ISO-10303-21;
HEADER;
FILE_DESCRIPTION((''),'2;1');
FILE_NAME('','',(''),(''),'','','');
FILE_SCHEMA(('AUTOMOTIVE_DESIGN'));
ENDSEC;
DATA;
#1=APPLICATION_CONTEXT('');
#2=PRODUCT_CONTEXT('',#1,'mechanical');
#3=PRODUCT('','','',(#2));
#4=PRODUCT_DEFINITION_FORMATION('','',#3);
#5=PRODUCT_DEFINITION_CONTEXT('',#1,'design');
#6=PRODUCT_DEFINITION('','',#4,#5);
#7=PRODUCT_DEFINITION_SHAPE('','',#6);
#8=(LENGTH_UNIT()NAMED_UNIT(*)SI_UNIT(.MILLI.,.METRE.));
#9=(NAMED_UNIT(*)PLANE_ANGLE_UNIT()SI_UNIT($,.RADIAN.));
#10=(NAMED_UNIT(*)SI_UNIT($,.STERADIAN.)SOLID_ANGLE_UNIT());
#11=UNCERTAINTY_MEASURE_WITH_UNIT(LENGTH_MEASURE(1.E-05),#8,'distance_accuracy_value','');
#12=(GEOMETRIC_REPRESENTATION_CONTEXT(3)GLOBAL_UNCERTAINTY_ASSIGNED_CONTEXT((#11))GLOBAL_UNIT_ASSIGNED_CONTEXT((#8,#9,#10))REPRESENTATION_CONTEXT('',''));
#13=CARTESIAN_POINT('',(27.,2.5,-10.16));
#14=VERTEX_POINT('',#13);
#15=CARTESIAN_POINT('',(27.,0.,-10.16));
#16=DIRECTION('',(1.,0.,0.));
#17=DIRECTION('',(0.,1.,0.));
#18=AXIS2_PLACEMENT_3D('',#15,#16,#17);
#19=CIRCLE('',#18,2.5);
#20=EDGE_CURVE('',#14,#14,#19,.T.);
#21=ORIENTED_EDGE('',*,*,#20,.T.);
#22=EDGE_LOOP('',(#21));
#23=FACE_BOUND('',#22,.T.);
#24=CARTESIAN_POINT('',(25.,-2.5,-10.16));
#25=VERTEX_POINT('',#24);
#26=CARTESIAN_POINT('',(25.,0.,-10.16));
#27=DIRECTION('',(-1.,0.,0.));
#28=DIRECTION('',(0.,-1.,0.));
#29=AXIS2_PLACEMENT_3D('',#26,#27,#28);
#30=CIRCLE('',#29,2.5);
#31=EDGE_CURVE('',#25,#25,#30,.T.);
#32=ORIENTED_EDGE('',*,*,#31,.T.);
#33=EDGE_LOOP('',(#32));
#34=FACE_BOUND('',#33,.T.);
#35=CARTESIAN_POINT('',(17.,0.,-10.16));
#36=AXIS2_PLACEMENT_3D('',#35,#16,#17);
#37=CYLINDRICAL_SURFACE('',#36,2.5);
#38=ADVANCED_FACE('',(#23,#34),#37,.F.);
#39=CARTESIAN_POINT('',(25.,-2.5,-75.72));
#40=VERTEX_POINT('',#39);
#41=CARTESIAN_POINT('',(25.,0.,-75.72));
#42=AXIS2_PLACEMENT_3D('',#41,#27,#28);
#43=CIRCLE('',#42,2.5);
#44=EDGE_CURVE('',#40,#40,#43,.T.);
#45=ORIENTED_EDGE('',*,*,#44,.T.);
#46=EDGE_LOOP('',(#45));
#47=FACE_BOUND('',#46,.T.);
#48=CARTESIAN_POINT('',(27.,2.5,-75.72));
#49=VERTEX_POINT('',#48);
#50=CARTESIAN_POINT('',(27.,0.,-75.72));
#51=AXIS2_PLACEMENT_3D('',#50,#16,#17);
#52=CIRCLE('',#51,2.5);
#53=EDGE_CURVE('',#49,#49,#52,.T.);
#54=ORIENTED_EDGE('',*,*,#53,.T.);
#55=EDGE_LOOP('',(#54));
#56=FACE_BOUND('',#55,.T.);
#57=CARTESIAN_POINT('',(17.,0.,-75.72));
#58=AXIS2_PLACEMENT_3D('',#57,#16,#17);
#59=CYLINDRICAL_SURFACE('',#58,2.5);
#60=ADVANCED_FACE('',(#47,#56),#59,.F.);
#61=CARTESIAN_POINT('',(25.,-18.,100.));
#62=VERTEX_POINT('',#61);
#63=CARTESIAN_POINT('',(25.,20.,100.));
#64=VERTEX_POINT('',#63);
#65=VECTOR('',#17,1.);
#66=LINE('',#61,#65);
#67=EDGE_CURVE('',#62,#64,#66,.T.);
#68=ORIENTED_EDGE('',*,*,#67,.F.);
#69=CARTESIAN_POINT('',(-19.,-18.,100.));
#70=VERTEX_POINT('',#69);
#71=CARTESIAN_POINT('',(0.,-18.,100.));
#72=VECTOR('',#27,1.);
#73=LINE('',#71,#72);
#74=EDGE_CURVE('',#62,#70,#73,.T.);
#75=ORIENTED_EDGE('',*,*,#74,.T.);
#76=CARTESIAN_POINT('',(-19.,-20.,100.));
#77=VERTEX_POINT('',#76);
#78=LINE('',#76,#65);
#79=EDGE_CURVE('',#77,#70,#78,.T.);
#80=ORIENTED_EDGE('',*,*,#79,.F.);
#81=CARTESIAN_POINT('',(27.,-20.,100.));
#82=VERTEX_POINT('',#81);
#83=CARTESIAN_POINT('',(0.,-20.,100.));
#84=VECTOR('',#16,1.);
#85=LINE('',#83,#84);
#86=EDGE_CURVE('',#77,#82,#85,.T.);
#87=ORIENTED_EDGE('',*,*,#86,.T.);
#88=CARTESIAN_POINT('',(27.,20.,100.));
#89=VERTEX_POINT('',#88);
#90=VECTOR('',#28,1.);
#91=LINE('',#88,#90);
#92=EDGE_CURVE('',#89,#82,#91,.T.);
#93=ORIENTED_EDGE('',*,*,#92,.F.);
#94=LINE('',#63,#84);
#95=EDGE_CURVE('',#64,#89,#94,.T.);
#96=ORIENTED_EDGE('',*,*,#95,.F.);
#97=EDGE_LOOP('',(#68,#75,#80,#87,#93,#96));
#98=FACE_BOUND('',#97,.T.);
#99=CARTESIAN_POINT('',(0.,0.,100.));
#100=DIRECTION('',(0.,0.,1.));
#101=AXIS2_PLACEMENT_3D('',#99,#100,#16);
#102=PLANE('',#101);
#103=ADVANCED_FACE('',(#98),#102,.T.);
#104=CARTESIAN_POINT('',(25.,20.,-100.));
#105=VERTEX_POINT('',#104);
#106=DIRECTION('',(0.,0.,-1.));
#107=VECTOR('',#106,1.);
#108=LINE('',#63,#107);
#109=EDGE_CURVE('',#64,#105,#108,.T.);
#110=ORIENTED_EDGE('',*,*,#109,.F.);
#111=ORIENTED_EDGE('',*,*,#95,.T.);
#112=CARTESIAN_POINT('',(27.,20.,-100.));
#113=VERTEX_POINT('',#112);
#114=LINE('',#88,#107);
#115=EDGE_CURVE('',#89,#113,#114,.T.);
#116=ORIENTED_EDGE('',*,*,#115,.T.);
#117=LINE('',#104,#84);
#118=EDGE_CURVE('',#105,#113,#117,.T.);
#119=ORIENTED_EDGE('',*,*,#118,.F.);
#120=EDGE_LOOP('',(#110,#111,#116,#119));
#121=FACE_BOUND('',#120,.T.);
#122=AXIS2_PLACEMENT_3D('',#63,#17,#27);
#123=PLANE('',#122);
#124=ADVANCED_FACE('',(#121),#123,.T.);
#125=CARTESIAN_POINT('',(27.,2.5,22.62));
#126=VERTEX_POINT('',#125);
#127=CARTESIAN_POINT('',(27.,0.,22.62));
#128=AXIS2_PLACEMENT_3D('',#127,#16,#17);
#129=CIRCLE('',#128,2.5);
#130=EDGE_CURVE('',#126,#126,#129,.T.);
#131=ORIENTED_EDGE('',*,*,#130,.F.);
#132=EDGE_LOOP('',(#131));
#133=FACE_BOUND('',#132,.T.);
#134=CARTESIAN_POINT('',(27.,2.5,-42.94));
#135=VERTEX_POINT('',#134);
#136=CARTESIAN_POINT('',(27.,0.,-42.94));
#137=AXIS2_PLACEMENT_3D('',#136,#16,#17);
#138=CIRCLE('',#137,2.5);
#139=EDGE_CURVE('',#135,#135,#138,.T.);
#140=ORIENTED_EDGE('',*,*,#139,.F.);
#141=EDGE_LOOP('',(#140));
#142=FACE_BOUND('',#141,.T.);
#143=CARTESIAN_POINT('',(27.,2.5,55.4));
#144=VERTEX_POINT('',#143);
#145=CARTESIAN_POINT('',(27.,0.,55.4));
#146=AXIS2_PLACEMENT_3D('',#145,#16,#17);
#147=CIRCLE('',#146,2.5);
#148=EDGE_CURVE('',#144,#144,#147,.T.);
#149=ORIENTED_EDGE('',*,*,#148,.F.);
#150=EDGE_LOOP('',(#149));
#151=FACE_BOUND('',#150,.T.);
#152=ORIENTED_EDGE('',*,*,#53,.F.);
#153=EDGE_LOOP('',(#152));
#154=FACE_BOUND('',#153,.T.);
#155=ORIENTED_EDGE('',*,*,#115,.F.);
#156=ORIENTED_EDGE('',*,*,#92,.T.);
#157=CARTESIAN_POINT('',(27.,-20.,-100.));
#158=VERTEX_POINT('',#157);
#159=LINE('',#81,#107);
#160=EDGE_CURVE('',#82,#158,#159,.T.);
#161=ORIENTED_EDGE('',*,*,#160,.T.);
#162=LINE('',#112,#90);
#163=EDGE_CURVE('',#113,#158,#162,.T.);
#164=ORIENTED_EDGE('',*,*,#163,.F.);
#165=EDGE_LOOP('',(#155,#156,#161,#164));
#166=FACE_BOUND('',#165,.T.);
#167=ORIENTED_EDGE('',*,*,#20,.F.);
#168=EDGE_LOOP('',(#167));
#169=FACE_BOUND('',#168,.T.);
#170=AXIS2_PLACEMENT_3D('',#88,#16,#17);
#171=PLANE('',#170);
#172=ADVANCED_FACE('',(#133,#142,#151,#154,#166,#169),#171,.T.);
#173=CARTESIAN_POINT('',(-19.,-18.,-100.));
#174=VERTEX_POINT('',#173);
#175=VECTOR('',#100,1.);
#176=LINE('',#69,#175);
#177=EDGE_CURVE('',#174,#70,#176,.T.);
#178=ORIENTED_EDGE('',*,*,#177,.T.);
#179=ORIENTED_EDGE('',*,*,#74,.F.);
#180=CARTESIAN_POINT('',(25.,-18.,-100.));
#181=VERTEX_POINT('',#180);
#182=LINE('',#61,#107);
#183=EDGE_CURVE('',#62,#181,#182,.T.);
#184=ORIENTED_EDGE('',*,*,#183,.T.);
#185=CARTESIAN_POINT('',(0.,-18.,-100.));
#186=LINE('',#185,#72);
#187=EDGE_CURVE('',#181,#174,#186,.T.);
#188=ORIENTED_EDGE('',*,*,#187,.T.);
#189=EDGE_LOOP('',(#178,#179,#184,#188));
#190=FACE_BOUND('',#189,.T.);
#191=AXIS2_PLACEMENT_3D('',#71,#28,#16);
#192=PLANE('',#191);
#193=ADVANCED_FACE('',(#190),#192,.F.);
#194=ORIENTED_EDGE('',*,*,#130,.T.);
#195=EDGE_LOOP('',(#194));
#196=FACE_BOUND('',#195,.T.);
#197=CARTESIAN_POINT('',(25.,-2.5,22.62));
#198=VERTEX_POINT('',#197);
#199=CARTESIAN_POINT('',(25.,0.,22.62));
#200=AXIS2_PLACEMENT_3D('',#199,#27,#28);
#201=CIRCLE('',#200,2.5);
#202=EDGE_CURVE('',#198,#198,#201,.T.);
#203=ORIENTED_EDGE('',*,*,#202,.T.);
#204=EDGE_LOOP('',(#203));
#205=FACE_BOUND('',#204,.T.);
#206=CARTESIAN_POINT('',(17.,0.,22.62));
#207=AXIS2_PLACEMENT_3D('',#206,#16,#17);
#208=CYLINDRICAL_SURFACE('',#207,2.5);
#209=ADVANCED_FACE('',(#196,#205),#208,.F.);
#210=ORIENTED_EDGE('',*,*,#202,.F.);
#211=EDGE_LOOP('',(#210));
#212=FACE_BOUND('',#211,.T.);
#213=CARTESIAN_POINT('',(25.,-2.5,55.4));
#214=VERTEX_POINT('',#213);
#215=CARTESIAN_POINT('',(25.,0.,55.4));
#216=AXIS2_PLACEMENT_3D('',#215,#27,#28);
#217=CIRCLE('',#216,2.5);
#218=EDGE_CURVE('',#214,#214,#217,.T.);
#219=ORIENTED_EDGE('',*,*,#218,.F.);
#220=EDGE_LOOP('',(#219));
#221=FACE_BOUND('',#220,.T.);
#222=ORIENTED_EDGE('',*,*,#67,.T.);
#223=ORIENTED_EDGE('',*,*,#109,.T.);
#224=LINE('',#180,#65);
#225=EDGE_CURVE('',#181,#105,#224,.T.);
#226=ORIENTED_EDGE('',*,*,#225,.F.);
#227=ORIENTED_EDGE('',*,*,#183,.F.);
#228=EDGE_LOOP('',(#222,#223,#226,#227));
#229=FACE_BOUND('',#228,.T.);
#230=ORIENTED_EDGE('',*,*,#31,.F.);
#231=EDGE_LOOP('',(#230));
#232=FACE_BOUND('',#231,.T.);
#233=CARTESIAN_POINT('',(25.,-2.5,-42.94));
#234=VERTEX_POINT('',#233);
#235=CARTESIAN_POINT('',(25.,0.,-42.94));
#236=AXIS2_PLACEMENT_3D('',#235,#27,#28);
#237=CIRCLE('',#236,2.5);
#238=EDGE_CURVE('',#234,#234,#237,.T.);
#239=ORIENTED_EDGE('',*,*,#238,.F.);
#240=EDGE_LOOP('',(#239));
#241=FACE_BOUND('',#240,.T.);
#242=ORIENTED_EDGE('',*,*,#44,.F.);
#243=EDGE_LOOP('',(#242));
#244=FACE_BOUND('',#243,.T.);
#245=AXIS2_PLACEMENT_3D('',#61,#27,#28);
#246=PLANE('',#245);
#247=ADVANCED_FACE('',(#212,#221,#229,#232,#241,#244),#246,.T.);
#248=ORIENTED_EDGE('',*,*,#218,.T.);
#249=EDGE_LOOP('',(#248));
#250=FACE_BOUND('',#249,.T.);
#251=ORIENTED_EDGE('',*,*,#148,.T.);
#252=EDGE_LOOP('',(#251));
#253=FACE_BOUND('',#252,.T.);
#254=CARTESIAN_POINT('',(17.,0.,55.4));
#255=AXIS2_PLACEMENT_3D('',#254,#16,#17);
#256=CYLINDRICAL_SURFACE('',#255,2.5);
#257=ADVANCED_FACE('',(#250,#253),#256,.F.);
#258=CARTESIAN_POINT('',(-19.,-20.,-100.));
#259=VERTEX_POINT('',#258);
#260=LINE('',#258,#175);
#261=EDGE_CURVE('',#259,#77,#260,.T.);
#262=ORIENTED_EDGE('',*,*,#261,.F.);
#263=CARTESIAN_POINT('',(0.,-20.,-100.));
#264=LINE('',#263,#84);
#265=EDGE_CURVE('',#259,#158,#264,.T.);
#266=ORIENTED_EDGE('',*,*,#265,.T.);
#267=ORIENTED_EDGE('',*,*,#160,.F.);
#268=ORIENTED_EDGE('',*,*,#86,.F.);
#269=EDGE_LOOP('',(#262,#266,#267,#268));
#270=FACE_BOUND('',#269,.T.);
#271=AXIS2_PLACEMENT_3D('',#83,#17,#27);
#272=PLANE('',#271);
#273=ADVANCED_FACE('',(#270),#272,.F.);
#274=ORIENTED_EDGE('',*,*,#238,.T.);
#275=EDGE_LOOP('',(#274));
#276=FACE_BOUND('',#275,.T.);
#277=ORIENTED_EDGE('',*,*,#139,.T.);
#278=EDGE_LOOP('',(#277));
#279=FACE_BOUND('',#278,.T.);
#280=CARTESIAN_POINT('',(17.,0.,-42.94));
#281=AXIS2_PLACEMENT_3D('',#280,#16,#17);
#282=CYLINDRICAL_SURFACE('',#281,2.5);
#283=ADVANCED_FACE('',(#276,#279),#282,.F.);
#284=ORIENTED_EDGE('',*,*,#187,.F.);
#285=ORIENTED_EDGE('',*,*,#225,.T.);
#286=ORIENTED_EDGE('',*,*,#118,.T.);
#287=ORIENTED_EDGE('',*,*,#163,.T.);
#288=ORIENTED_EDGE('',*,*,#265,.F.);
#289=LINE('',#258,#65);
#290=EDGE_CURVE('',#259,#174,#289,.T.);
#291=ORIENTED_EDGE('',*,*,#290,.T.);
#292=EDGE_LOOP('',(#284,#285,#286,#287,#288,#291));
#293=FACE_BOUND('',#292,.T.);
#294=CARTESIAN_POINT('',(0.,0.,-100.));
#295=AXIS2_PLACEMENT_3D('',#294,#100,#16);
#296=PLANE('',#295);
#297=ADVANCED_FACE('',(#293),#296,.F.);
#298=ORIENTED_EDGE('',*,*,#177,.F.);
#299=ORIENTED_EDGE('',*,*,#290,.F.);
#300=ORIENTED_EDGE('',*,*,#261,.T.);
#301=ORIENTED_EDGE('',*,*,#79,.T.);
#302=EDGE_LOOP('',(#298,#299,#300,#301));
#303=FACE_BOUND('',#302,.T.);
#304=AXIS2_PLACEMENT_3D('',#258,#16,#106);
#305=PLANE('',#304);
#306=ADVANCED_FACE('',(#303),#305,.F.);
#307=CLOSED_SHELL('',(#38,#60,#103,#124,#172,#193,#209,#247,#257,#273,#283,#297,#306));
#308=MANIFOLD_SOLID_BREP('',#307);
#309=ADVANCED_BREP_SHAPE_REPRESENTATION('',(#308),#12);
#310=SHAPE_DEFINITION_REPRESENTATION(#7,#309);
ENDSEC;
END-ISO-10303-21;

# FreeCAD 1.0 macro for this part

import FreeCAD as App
import Part
import Sketcher

V = App.Vector
Q = App.Units.Quantity

doc = App.newDocument("Part")
params = doc.addObject("Spreadsheet::Sheet", "Params")
for row, (alias, value) in enumerate([
    ("sketch1_width", "54 mm"),
    ("sketch1_width2", "2 mm"),
    ("sketch1_height", "40 mm"),
    ("sketch1_height2", "38 mm"),
    ("pad1_length", "200 mm"),
    ("sketch2_diameter", "5 mm"),
    ("pocket1_length", "10 mm"),
    ("sketch3_width", "8 mm"),
    ("sketch3_height", "40 mm"),
], start=1):
    params.set(f"A{row}", alias)
    params.set(f"B{row}", "=" + value)
    params.setAlias(f"B{row}", alias)

body = doc.addObject("PartDesign::Body", "Body")

# Sketch on XY plane
sketch1 = doc.addObject("Sketcher::SketchObject", "Sketch")
body.addObject(sketch1)
sketch1.AttachmentSupport = (doc.XY_Plane, [""])
sketch1.MapMode = "FlatFace"
sketch1.addGeometry(Part.LineSegment(V(-27, 20, 0), V(-27, -20, 0)), False)
sketch1.addGeometry(Part.LineSegment(V(-27, -20, 0), V(27, -20, 0)), False)
sketch1.addGeometry(Part.LineSegment(V(27, -20, 0), V(27, 20, 0)), False)
sketch1.addGeometry(Part.LineSegment(V(27, 20, 0), V(25, 20, 0)), False)
sketch1.addGeometry(Part.LineSegment(V(25, 20, 0), V(25, -18, 0)), False)
sketch1.addGeometry(Part.LineSegment(V(25, -18, 0), V(-25, -18, 0)), False)
sketch1.addGeometry(Part.LineSegment(V(-25, -18, 0), V(-25, 20, 0)), False)
sketch1.addGeometry(Part.LineSegment(V(-25, 20, 0), V(-27, 20, 0)), False)
sketch1.addConstraint(Sketcher.Constraint("Coincident", 0, 2, 1, 1))
sketch1.addConstraint(Sketcher.Constraint("Coincident", 1, 2, 2, 1))
sketch1.addConstraint(Sketcher.Constraint("Coincident", 2, 2, 3, 1))
sketch1.addConstraint(Sketcher.Constraint("Coincident", 3, 2, 4, 1))
sketch1.addConstraint(Sketcher.Constraint("Coincident", 4, 2, 5, 1))
sketch1.addConstraint(Sketcher.Constraint("Coincident", 5, 2, 6, 1))
sketch1.addConstraint(Sketcher.Constraint("Coincident", 6, 2, 7, 1))
sketch1.addConstraint(Sketcher.Constraint("Coincident", 7, 2, 0, 1))
sketch1.addConstraint(Sketcher.Constraint("Vertical", 0))
sketch1.addConstraint(Sketcher.Constraint("Horizontal", 1))
sketch1.addConstraint(Sketcher.Constraint("Vertical", 2))
sketch1.addConstraint(Sketcher.Constraint("Horizontal", 3))
sketch1.addConstraint(Sketcher.Constraint("Vertical", 4))
sketch1.addConstraint(Sketcher.Constraint("Horizontal", 5))
sketch1.addConstraint(Sketcher.Constraint("Vertical", 6))
sketch1.addConstraint(Sketcher.Constraint("Horizontal", 7))
sketch1.addConstraint(Sketcher.Constraint("Symmetric", 0, 2, 2, 2, -1, 1))
sketch1.addConstraint(Sketcher.Constraint("Symmetric", 3, 2, 6, 2, -2))
sketch1.addConstraint(Sketcher.Constraint("DistanceX", 1, 1, 1, 2, Q("54 mm")))
sketch1.addConstraint(Sketcher.Constraint("DistanceX", 3, 2, 3, 1, Q("2 mm")))
sketch1.addConstraint(Sketcher.Constraint("DistanceY", 0, 2, 0, 1, Q("40 mm")))
sketch1.addConstraint(Sketcher.Constraint("DistanceY", 4, 2, 4, 1, Q("38 mm")))
sketch1.setExpression("Constraints[18]", "Params.sketch1_width")
sketch1.setExpression("Constraints[19]", "Params.sketch1_width2")
sketch1.setExpression("Constraints[20]", "Params.sketch1_height")
sketch1.setExpression("Constraints[21]", "Params.sketch1_height2")
pad1 = doc.addObject("PartDesign::Pad", "Pad")
body.addObject(pad1)
pad1.Profile = sketch1
pad1.setExpression("Length", "Params.pad1_length")
pad1.Midplane = True

# Sketch on YZ plane
sketch2 = doc.addObject("Sketcher::SketchObject", "Sketch001")
body.addObject(sketch2)
sketch2.AttachmentSupport = (doc.YZ_Plane, [""])
sketch2.MapMode = "FlatFace"
sketch2.AttachmentOffset = App.Placement(V(0, 0, 27), App.Rotation())
sketch2.addGeometry(Part.Circle(V(0, 55.4, 0), V(0, 0, 1), 2.5), False)
sketch2.addGeometry(Part.Circle(V(0, 22.6, 0), V(0, 0, 1), 2.5), False)
sketch2.addGeometry(Part.Circle(V(0, -10.2, 0), V(0, 0, 1), 2.5), False)
sketch2.addGeometry(Part.Circle(V(0, -42.9, 0), V(0, 0, 1), 2.5), False)
sketch2.addGeometry(Part.Circle(V(0, -75.7, 0), V(0, 0, 1), 2.5), False)
sketch2.addConstraint(Sketcher.Constraint("Equal", 0, 1))
sketch2.addConstraint(Sketcher.Constraint("Equal", 1, 2))
sketch2.addConstraint(Sketcher.Constraint("Equal", 2, 3))
sketch2.addConstraint(Sketcher.Constraint("Equal", 3, 4))
sketch2.addConstraint(Sketcher.Constraint("PointOnObject", 0, 3, -2))
sketch2.addConstraint(Sketcher.Constraint("PointOnObject", 1, 3, -2))
sketch2.addConstraint(Sketcher.Constraint("PointOnObject", 2, 3, -2))
sketch2.addConstraint(Sketcher.Constraint("PointOnObject", 3, 3, -2))
sketch2.addConstraint(Sketcher.Constraint("PointOnObject", 4, 3, -2))
sketch2.addConstraint(Sketcher.Constraint("Diameter", 0, Q("5 mm")))
sketch2.addConstraint(Sketcher.Constraint("DistanceY", -1, 1, 0, 3, Q("55.4 mm")))
sketch2.addConstraint(Sketcher.Constraint("DistanceY", -1, 1, 1, 3, Q("22.62 mm")))
sketch2.addConstraint(Sketcher.Constraint("DistanceY", 2, 3, -1, 1, Q("10.16 mm")))
sketch2.addConstraint(Sketcher.Constraint("DistanceY", 3, 3, -1, 1, Q("42.94 mm")))
sketch2.addConstraint(Sketcher.Constraint("DistanceY", 4, 3, -1, 1, Q("75.72 mm")))
sketch2.setExpression("Constraints[9]", "Params.sketch2_diameter")
pocket1 = doc.addObject("PartDesign::Pocket", "Pocket")
body.addObject(pocket1)
pocket1.Profile = sketch2
pocket1.setExpression("Length", "Params.pocket1_length")

# Sketch on XY plane
sketch3 = doc.addObject("Sketcher::SketchObject", "Sketch002")
body.addObject(sketch3)
sketch3.AttachmentSupport = (doc.XY_Plane, [""])
sketch3.MapMode = "FlatFace"
sketch3.AttachmentOffset = App.Placement(V(0, 0, 100), App.Rotation())
sketch3.addGeometry(Part.LineSegment(V(-27, 20, 0), V(-27, -20, 0)), False)
sketch3.addGeometry(Part.LineSegment(V(-27, -20, 0), V(-19, -20, 0)), False)
sketch3.addGeometry(Part.LineSegment(V(-19, -20, 0), V(-19, 20, 0)), False)
sketch3.addGeometry(Part.LineSegment(V(-19, 20, 0), V(-27, 20, 0)), False)
sketch3.addConstraint(Sketcher.Constraint("Coincident", 0, 2, 1, 1))
sketch3.addConstraint(Sketcher.Constraint("Coincident", 1, 2, 2, 1))
sketch3.addConstraint(Sketcher.Constraint("Coincident", 2, 2, 3, 1))
sketch3.addConstraint(Sketcher.Constraint("Coincident", 3, 2, 0, 1))
sketch3.addConstraint(Sketcher.Constraint("Vertical", 0))
sketch3.addConstraint(Sketcher.Constraint("Horizontal", 1))
sketch3.addConstraint(Sketcher.Constraint("Vertical", 2))
sketch3.addConstraint(Sketcher.Constraint("Horizontal", 3))
sketch3.addConstraint(Sketcher.Constraint("DistanceX", 1, 1, 1, 2, Q("8 mm")))
sketch3.addConstraint(Sketcher.Constraint("DistanceY", 0, 2, 0, 1, Q("40 mm")))
sketch3.addConstraint(Sketcher.Constraint("DistanceX", 0, 2, -1, 1, Q("27 mm")))
sketch3.addConstraint(Sketcher.Constraint("DistanceY", 0, 2, -1, 1, Q("20 mm")))
sketch3.setExpression("Constraints[8]", "Params.sketch3_width")
sketch3.setExpression("Constraints[9]", "Params.sketch3_height")
pocket2 = doc.addObject("PartDesign::Pocket", "Pocket001")
body.addObject(pocket2)
pocket2.Profile = sketch3
pocket2.Type = "ThroughAll"

doc.recompute()
